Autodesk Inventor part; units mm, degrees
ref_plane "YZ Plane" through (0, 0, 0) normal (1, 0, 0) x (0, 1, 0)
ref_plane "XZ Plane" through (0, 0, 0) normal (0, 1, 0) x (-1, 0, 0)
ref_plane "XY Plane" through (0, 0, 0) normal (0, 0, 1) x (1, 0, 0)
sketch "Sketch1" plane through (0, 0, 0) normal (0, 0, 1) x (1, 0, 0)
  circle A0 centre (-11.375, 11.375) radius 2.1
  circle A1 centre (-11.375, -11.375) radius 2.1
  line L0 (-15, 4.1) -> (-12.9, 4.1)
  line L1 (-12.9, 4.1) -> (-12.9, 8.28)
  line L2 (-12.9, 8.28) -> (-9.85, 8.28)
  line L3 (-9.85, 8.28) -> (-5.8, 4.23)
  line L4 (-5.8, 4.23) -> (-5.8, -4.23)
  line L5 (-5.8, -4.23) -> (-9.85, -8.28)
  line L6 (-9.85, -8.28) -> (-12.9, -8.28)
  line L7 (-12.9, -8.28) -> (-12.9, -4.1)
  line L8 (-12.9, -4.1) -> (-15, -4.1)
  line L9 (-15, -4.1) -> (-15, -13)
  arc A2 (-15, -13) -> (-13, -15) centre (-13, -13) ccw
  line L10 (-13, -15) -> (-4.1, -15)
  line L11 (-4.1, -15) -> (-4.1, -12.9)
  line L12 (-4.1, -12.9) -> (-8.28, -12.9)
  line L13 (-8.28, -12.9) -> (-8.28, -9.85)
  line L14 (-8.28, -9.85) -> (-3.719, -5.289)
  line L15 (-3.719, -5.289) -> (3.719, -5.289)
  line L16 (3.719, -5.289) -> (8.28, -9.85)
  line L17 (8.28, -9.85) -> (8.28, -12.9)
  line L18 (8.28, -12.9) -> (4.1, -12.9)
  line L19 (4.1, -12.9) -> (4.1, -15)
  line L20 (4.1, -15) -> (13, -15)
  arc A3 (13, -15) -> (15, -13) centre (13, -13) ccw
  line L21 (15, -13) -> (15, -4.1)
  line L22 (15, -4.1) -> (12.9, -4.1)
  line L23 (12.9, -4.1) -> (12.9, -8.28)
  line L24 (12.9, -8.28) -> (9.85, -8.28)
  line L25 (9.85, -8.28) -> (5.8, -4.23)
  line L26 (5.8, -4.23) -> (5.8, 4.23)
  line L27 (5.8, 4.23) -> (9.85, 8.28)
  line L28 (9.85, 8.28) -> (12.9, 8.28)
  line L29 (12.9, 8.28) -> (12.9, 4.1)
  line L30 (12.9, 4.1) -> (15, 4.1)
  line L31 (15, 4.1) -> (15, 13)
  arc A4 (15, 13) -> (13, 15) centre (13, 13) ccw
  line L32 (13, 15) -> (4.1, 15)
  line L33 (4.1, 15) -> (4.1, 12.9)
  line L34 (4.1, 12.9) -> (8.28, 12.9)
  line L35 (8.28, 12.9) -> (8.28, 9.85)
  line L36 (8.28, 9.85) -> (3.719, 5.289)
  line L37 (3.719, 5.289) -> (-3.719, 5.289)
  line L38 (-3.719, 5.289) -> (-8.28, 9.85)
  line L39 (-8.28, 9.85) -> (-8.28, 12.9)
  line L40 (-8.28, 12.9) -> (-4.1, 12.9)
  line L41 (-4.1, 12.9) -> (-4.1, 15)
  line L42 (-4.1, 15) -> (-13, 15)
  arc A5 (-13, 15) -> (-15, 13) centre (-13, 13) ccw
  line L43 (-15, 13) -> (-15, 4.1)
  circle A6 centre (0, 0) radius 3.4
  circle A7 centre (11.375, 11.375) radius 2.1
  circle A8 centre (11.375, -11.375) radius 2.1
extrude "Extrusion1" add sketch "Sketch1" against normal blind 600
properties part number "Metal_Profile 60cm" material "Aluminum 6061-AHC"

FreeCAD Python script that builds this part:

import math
import FreeCAD as App
import Part
import Sketcher

V = App.Vector
Q = App.Units.Quantity

doc = App.newDocument("Part")
params = doc.addObject("Spreadsheet::Sheet", "Params")
for row, (alias, value) in enumerate([
    ("sketch1_radius", "2 mm"),
    ("sketch1_diameter", "4.2 mm"),
    ("sketch1_diameter2", "6.8 mm"),
    ("sketch1_width", "2.1 mm"),
    ("sketch1_width2", "8.9 mm"),
    ("pad1_length", "600 mm"),
], start=1):
    params.set(f"A{row}", alias)
    params.set(f"B{row}", "=" + value)
    params.setAlias(f"B{row}", alias)

body = doc.addObject("PartDesign::Body", "Body")

sketch1 = body.newObject("Sketcher::SketchObject", "Sketch")
sketch1.AttachmentSupport = (doc.getObject("XY_Plane"), [""])
sketch1.MapMode = "FlatFace"
sketch1.addGeometry([
    Part.LineSegment(V(-15, 13, 0), V(-15, 4.1, 0)),
    Part.LineSegment(V(-15, 4.1, 0), V(-12.9, 4.1, 0)),
    Part.LineSegment(V(-12.9, 4.1, 0), V(-12.9, 8.28, 0)),
    Part.LineSegment(V(-12.9, 8.28, 0), V(-9.85, 8.28, 0)),
    Part.LineSegment(V(-9.85, 8.28, 0), V(-5.8, 4.23, 0)),
    Part.LineSegment(V(-5.8, 4.23, 0), V(-5.8, -4.23, 0)),
    Part.LineSegment(V(-5.8, -4.23, 0), V(-9.85, -8.28, 0)),
    Part.LineSegment(V(-9.85, -8.28, 0), V(-12.9, -8.28, 0)),
    Part.LineSegment(V(-12.9, -8.28, 0), V(-12.9, -4.1, 0)),
    Part.LineSegment(V(-12.9, -4.1, 0), V(-15, -4.1, 0)),
    Part.LineSegment(V(-15, -4.1, 0), V(-15, -13, 0)),
    Part.ArcOfCircle(Part.Circle(V(-13, -13, 0), V(0, 0, 1), 2), math.radians(180), math.radians(270)),
    Part.LineSegment(V(-13, -15, 0), V(-4.1, -15, 0)),
    Part.LineSegment(V(-4.1, -15, 0), V(-4.1, -12.9, 0)),
    Part.LineSegment(V(-4.1, -12.9, 0), V(-8.28, -12.9, 0)),
    Part.LineSegment(V(-8.28, -12.9, 0), V(-8.28, -9.85, 0)),
    Part.LineSegment(V(-8.28, -9.85, 0), V(-3.719, -5.289, 0)),
    Part.LineSegment(V(-3.719, -5.289, 0), V(3.719, -5.289, 0)),
    Part.LineSegment(V(3.719, -5.289, 0), V(8.28, -9.85, 0)),
    Part.LineSegment(V(8.28, -9.85, 0), V(8.28, -12.9, 0)),
    Part.LineSegment(V(8.28, -12.9, 0), V(4.1, -12.9, 0)),
    Part.LineSegment(V(4.1, -12.9, 0), V(4.1, -15, 0)),
    Part.LineSegment(V(4.1, -15, 0), V(13, -15, 0)),
    Part.ArcOfCircle(Part.Circle(V(13, -13, 0), V(0, 0, 1), 2), math.radians(-90), math.radians(0)),
    Part.LineSegment(V(15, -13, 0), V(15, -4.1, 0)),
    Part.LineSegment(V(15, -4.1, 0), V(12.9, -4.1, 0)),
    Part.LineSegment(V(12.9, -4.1, 0), V(12.9, -8.28, 0)),
    Part.LineSegment(V(12.9, -8.28, 0), V(9.85, -8.28, 0)),
    Part.LineSegment(V(9.85, -8.28, 0), V(5.8, -4.23, 0)),
    Part.LineSegment(V(5.8, -4.23, 0), V(5.8, 4.23, 0)),
    Part.LineSegment(V(5.8, 4.23, 0), V(9.85, 8.28, 0)),
    Part.LineSegment(V(9.85, 8.28, 0), V(12.9, 8.28, 0)),
    Part.LineSegment(V(12.9, 8.28, 0), V(12.9, 4.1, 0)),
    Part.LineSegment(V(12.9, 4.1, 0), V(15, 4.1, 0)),
    Part.LineSegment(V(15, 4.1, 0), V(15, 13, 0)),
    Part.ArcOfCircle(Part.Circle(V(13, 13, 0), V(0, 0, 1), 2), math.radians(0), math.radians(90)),
    Part.LineSegment(V(13, 15, 0), V(4.1, 15, 0)),
    Part.LineSegment(V(4.1, 15, 0), V(4.1, 12.9, 0)),
    Part.LineSegment(V(4.1, 12.9, 0), V(8.28, 12.9, 0)),
    Part.LineSegment(V(8.28, 12.9, 0), V(8.28, 9.85, 0)),
    Part.LineSegment(V(8.28, 9.85, 0), V(3.719, 5.289, 0)),
    Part.LineSegment(V(3.719, 5.289, 0), V(-3.719, 5.289, 0)),
    Part.LineSegment(V(-3.719, 5.289, 0), V(-8.28, 9.85, 0)),
    Part.LineSegment(V(-8.28, 9.85, 0), V(-8.28, 12.9, 0)),
    Part.LineSegment(V(-8.28, 12.9, 0), V(-4.1, 12.9, 0)),
    Part.LineSegment(V(-4.1, 12.9, 0), V(-4.1, 15, 0)),
    Part.LineSegment(V(-4.1, 15, 0), V(-13, 15, 0)),
    Part.ArcOfCircle(Part.Circle(V(-13, 13, 0), V(0, 0, 1), 2), math.radians(90), math.radians(180)),
    Part.Circle(V(-11.375, -11.375, 0), V(0, 0, 1), 2.1),
    Part.Circle(V(11.375, -11.375, 0), V(0, 0, 1), 2.1),
    Part.Circle(V(-11.375, 11.375, 0), V(0, 0, 1), 2.1),
    Part.Circle(V(0, 0, 0), V(0, 0, 1), 3.4),
    Part.Circle(V(11.375, 11.375, 0), V(0, 0, 1), 2.1),
], False)
sketch1.addConstraint([
    Sketcher.Constraint("Coincident", 0, 2, 1, 1),
    Sketcher.Constraint("Coincident", 1, 2, 2, 1),
    Sketcher.Constraint("Coincident", 2, 2, 3, 1),
    Sketcher.Constraint("Coincident", 3, 2, 4, 1),
    Sketcher.Constraint("Coincident", 4, 2, 5, 1),
    Sketcher.Constraint("Coincident", 5, 2, 6, 1),
    Sketcher.Constraint("Coincident", 6, 2, 7, 1),
    Sketcher.Constraint("Coincident", 7, 2, 8, 1),
    Sketcher.Constraint("Coincident", 8, 2, 9, 1),
    Sketcher.Constraint("Coincident", 9, 2, 10, 1),
    Sketcher.Constraint("Tangent", 10, 2, 11, 1),
    Sketcher.Constraint("Tangent", 11, 2, 12, 1),
    Sketcher.Constraint("Coincident", 12, 2, 13, 1),
    Sketcher.Constraint("Coincident", 13, 2, 14, 1),
    Sketcher.Constraint("Coincident", 14, 2, 15, 1),
    Sketcher.Constraint("Coincident", 15, 2, 16, 1),
    Sketcher.Constraint("Coincident", 16, 2, 17, 1),
    Sketcher.Constraint("Coincident", 17, 2, 18, 1),
    Sketcher.Constraint("Coincident", 18, 2, 19, 1),
    Sketcher.Constraint("Coincident", 19, 2, 20, 1),
    Sketcher.Constraint("Coincident", 20, 2, 21, 1),
    Sketcher.Constraint("Coincident", 21, 2, 22, 1),
    Sketcher.Constraint("Tangent", 22, 2, 23, 1),
    Sketcher.Constraint("Tangent", 23, 2, 24, 1),
    Sketcher.Constraint("Coincident", 24, 2, 25, 1),
    Sketcher.Constraint("Coincident", 25, 2, 26, 1),
    Sketcher.Constraint("Coincident", 26, 2, 27, 1),
    Sketcher.Constraint("Coincident", 27, 2, 28, 1),
    Sketcher.Constraint("Coincident", 28, 2, 29, 1),
    Sketcher.Constraint("Coincident", 29, 2, 30, 1),
    Sketcher.Constraint("Coincident", 30, 2, 31, 1),
    Sketcher.Constraint("Coincident", 31, 2, 32, 1),
    Sketcher.Constraint("Coincident", 32, 2, 33, 1),
    Sketcher.Constraint("Coincident", 33, 2, 34, 1),
    Sketcher.Constraint("Tangent", 34, 2, 35, 1),
    Sketcher.Constraint("Tangent", 35, 2, 36, 1),
    Sketcher.Constraint("Coincident", 36, 2, 37, 1),
    Sketcher.Constraint("Coincident", 37, 2, 38, 1),
    Sketcher.Constraint("Coincident", 38, 2, 39, 1),
    Sketcher.Constraint("Coincident", 39, 2, 40, 1),
    Sketcher.Constraint("Coincident", 40, 2, 41, 1),
    Sketcher.Constraint("Coincident", 41, 2, 42, 1),
    Sketcher.Constraint("Coincident", 42, 2, 43, 1),
    Sketcher.Constraint("Coincident", 43, 2, 44, 1),
    Sketcher.Constraint("Coincident", 44, 2, 45, 1),
    Sketcher.Constraint("Coincident", 45, 2, 46, 1),
    Sketcher.Constraint("Tangent", 46, 2, 47, 1),
    Sketcher.Constraint("Tangent", 47, 2, 0, 1),
    Sketcher.Constraint("Vertical", 0),
    Sketcher.Constraint("Horizontal", 1),
    Sketcher.Constraint("Vertical", 2),
    Sketcher.Constraint("Horizontal", 3),
    Sketcher.Constraint("Vertical", 5),
    Sketcher.Constraint("Horizontal", 7),
    Sketcher.Constraint("Vertical", 8),
    Sketcher.Constraint("Horizontal", 9),
    Sketcher.Constraint("Vertical", 10),
    Sketcher.Constraint("Horizontal", 12),
    Sketcher.Constraint("Vertical", 13),
    Sketcher.Constraint("Horizontal", 14),
    Sketcher.Constraint("Vertical", 15),
    Sketcher.Constraint("Horizontal", 17),
    Sketcher.Constraint("Vertical", 19),
    Sketcher.Constraint("Horizontal", 20),
    Sketcher.Constraint("Vertical", 21),
    Sketcher.Constraint("Horizontal", 22),
    Sketcher.Constraint("Vertical", 24),
    Sketcher.Constraint("Horizontal", 25),
    Sketcher.Constraint("Vertical", 26),
    Sketcher.Constraint("Horizontal", 27),
    Sketcher.Constraint("Vertical", 29),
    Sketcher.Constraint("Horizontal", 31),
    Sketcher.Constraint("Vertical", 32),
    Sketcher.Constraint("Horizontal", 33),
    Sketcher.Constraint("Vertical", 34),
    Sketcher.Constraint("Horizontal", 36),
    Sketcher.Constraint("Vertical", 37),
    Sketcher.Constraint("Horizontal", 38),
    Sketcher.Constraint("Vertical", 39),
    Sketcher.Constraint("Horizontal", 41),
    Sketcher.Constraint("Vertical", 43),
    Sketcher.Constraint("Horizontal", 44),
    Sketcher.Constraint("Vertical", 45),
    Sketcher.Constraint("Horizontal", 46),
    Sketcher.Constraint("Coincident", 51, 3, -1, 1),
    Sketcher.Constraint("Equal", 11, 23),
    Sketcher.Constraint("Equal", 23, 35),
    Sketcher.Constraint("Equal", 35, 47),
    Sketcher.Constraint("Equal", 48, 49),
    Sketcher.Constraint("Equal", 49, 50),
    Sketcher.Constraint("Equal", 50, 52),
    Sketcher.Constraint("Symmetric", 11, 3, 35, 3, -1, 1),
    Sketcher.Constraint("Symmetric", 23, 3, 47, 3, -1, 1),
    Sketcher.Constraint("Symmetric", 49, 3, 50, 3, -1, 1),
    Sketcher.Constraint("Symmetric", 48, 3, 52, 3, -1, 1),
    Sketcher.Constraint("Symmetric", 1, 2, 25, 2, -1, 1),
    Sketcher.Constraint("Symmetric", 3, 2, 27, 2, -1, 1),
    Sketcher.Constraint("Symmetric", 4, 2, 28, 2, -1, 1),
    Sketcher.Constraint("Symmetric", 6, 2, 30, 2, -1, 1),
    Sketcher.Constraint("Symmetric", 8, 2, 32, 2, -1, 1),
    Sketcher.Constraint("Symmetric", 13, 2, 37, 2, -1, 1),
    Sketcher.Constraint("Symmetric", 15, 2, 39, 2, -1, 1),
    Sketcher.Constraint("Symmetric", 16, 2, 40, 2, -1, 1),
    Sketcher.Constraint("Symmetric", 18, 2, 42, 2, -1, 1),
    Sketcher.Constraint("Symmetric", 20, 2, 44, 2, -1, 1),
    Sketcher.Constraint("Symmetric", 11, 3, 23, 3, -2),
    Sketcher.Constraint("Symmetric", 48, 3, 49, 3, -2),
    Sketcher.Constraint("Symmetric", 15, 2, 18, 2, -2),
    Sketcher.Constraint("Symmetric", 13, 2, 20, 2, -2),
    Sketcher.Constraint("Symmetric", 8, 2, 25, 2, -2),
    Sketcher.Constraint("Symmetric", 6, 2, 27, 2, -2),
    Sketcher.Constraint("Perpendicular", 4, 6),
    Sketcher.Constraint("Parallel", 6, 16),
    Sketcher.Constraint("Perpendicular", 16, 18),
    Sketcher.Constraint("Perpendicular", 28, 30),
    Sketcher.Constraint("Perpendicular", 40, 42),
    Sketcher.Constraint("Horizontal", 5, 2, 28, 2),
    Sketcher.Constraint("Equal", 46, 0),
    Sketcher.Constraint("Equal", 44, 2),
    Sketcher.Constraint("Equal", 33, 13),
    Sketcher.Constraint("Equal", 31, 15),
    Sketcher.Constraint("Radius", 11, Q("2 mm")),
    Sketcher.Constraint("Diameter", 48, Q("4.2 mm")),
    Sketcher.Constraint("Diameter", 51, Q("6.8 mm")),
    Sketcher.Constraint("DistanceX", 1, 1, 1, 2, Q("2.1 mm")),
    Sketcher.Constraint("DistanceX", 12, 1, 12, 2, Q("8.9 mm")),
    Sketcher.Constraint("DistanceX", 11, 3, -1, 1, Q("13 mm")),
    Sketcher.Constraint("DistanceY", 11, 3, -1, 1, Q("13 mm")),
    Sketcher.Constraint("DistanceX", 3, 1, 3, 2, Q("3.05 mm")),
    Sketcher.Constraint("DistanceX", 14, 2, 14, 1, Q("4.18 mm")),
    Sketcher.Constraint("DistanceY", 5, 2, 5, 1, Q("8.46 mm")),
    Sketcher.Constraint("DistanceX", 17, 1, 17, 2, Q("7.438 mm")),
    Sketcher.Constraint("DistanceX", 48, 3, 49, 3, Q("22.75 mm")),
    Sketcher.Constraint("DistanceY", 48, 3, 50, 3, Q("22.75 mm")),
])
sketch1.setExpression("Constraints[121]", "Params.sketch1_radius")
sketch1.setExpression("Constraints[122]", "Params.sketch1_diameter")
sketch1.setExpression("Constraints[123]", "Params.sketch1_diameter2")
sketch1.setExpression("Constraints[124]", "Params.sketch1_width")
sketch1.setExpression("Constraints[125]", "Params.sketch1_width2")
pad1 = body.newObject("PartDesign::Pad", "Pad")
pad1.Profile = sketch1
pad1.setExpression("Length", "Params.pad1_length")
pad1.Reversed = True

doc.recompute()
